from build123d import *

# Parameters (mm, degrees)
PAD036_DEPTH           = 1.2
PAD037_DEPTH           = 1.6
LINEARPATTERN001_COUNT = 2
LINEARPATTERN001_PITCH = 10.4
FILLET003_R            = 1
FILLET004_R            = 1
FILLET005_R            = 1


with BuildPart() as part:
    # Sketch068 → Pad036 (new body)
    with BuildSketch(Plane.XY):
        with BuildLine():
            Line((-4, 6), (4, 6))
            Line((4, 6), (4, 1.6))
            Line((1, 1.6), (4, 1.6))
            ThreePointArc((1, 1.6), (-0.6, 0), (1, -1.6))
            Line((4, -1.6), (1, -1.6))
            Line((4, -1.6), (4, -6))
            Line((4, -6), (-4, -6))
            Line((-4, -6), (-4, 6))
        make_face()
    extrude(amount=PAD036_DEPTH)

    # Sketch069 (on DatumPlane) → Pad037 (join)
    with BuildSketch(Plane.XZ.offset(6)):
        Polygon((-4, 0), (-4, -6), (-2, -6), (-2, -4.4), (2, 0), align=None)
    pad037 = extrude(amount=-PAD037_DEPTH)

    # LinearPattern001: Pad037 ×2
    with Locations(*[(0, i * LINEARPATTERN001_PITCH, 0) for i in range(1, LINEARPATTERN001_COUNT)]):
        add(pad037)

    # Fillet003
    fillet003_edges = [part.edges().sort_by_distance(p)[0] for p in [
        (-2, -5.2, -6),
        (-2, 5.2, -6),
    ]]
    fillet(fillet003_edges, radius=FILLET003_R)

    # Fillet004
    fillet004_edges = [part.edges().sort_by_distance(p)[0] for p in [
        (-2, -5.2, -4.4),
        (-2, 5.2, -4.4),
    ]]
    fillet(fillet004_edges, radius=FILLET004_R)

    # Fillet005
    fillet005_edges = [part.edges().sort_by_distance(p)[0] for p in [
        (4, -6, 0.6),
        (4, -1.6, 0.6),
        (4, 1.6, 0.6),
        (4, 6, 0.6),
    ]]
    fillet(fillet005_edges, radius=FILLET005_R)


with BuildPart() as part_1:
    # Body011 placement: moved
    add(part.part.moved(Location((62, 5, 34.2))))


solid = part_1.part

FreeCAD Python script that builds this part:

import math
import FreeCAD as App
import Part
import Sketcher
from FreeCAD import Vector
Q = App.Units.Quantity


def edges_at(feature, points):
    """Names of the edges that pass closest to the given points."""
    edges = feature.Shape.Edges
    near = lambda p: min(range(len(edges)), key=lambda i: edges[i].distToShape(Part.Vertex(*p))[0])
    return sorted({f"Edge{near(p) + 1}" for p in points})

doc = App.newDocument("Part")
body = doc.addObject("PartDesign::Body", "Body")

# Sketch on XY plane
sketch1 = body.newObject("Sketcher::SketchObject", "Sketch")
sketch1.AttachmentSupport = (doc.getObject("XY_Plane"), [""])
sketch1.MapMode = "FlatFace"
sketch1.addGeometry([
    Part.LineSegment(Vector(4, 6, 0), Vector(-4, 6, 0)),  # 0
    Part.LineSegment(Vector(-4, 6, 0), Vector(-4, -6, 0)),  # 1
    Part.LineSegment(Vector(-4, -6, 0), Vector(4, -6, 0)),  # 2
    Part.LineSegment(Vector(4, -6, 0), Vector(4, -1.6, 0)),  # 3
    Part.LineSegment(Vector(4, -1.6, 0), Vector(1, -1.6, 0)),  # 4
    Part.ArcOfCircle(Part.Circle(Vector(1, 0, 0), Vector(0, 0, 1), 1.6), math.radians(90), math.radians(270)),  # 5
    Part.LineSegment(Vector(1, 1.6, 0), Vector(4, 1.6, 0)),  # 6
    Part.LineSegment(Vector(4, 1.6, 0), Vector(4, 6, 0)),  # 7
], False)
sketch1.addConstraint([
    Sketcher.Constraint("Coincident", 0, 2, 1, 1),
    Sketcher.Constraint("Coincident", 1, 2, 2, 1),
    Sketcher.Constraint("Coincident", 2, 2, 3, 1),
    Sketcher.Constraint("Coincident", 3, 2, 4, 1),
    Sketcher.Constraint("Tangent", 4, 2, 5, 2),
    Sketcher.Constraint("Tangent", 5, 1, 6, 1),
    Sketcher.Constraint("Coincident", 6, 2, 7, 1),
    Sketcher.Constraint("Coincident", 7, 2, 0, 1),
    Sketcher.Constraint("Horizontal", 0),
    Sketcher.Constraint("Vertical", 1),
    Sketcher.Constraint("Horizontal", 2),
    Sketcher.Constraint("Vertical", 3),
    Sketcher.Constraint("Horizontal", 4),
    Sketcher.Constraint("Horizontal", 6),
    Sketcher.Constraint("Vertical", 7),
    Sketcher.Constraint("Symmetric", 0, 2, 2, 2, -1, 1),
    Sketcher.Constraint("Symmetric", 3, 2, 6, 2, -1),
    Sketcher.Constraint("Radius", 5, Q("1.6 mm")),
    Sketcher.Constraint("DistanceX", 0, 2, 0, 1, Q("8 mm")),
    Sketcher.Constraint("DistanceX", 4, 2, 4, 1, Q("3 mm")),
    Sketcher.Constraint("DistanceY", 1, 2, 1, 1, Q("12 mm")),
])
pad1 = body.newObject("PartDesign::Pad", "Pad")
pad1.Profile = sketch1
pad1.Length = 1.2

# Sketch on XZ plane
sketch2 = body.newObject("Sketcher::SketchObject", "Sketch001")
sketch2.AttachmentSupport = (doc.getObject("XZ_Plane"), [""])
sketch2.MapMode = "FlatFace"
sketch2.AttachmentOffset = App.Placement(Vector(0, 0, 6), App.Rotation())
sketch2.addGeometry([
    Part.LineSegment(Vector(-4, 0, 0), Vector(-4, -6, 0)),  # 0
    Part.LineSegment(Vector(-4, -6, 0), Vector(-2, -6, 0)),  # 1
    Part.LineSegment(Vector(-2, -6, 0), Vector(-2, -4.4, 0)),  # 2
    Part.LineSegment(Vector(-2, -4.4, 0), Vector(2, 0, 0)),  # 3
    Part.LineSegment(Vector(2, 0, 0), Vector(-4, 0, 0)),  # 4
], False)
sketch2.addConstraint([
    Sketcher.Constraint("Coincident", 0, 2, 1, 1),
    Sketcher.Constraint("Coincident", 1, 2, 2, 1),
    Sketcher.Constraint("Coincident", 2, 2, 3, 1),
    Sketcher.Constraint("Coincident", 3, 2, 4, 1),
    Sketcher.Constraint("Coincident", 4, 2, 0, 1),
    Sketcher.Constraint("Vertical", 0),
    Sketcher.Constraint("Horizontal", 1),
    Sketcher.Constraint("Vertical", 2),
    Sketcher.Constraint("Horizontal", 4),
    Sketcher.Constraint("PointOnObject", 3, 2, -1),
    Sketcher.Constraint("Equal", 4, 0),
    Sketcher.Constraint("DistanceX", 1, 1, 1, 2, Q("2 mm")),
    Sketcher.Constraint("DistanceX", 4, 2, 4, 1, Q("6 mm")),
    Sketcher.Constraint("DistanceY", 2, 1, 2, 2, Q("1.6 mm")),
    Sketcher.Constraint("DistanceX", 0, 2, -1, 1, Q("4 mm")),
])
pad2 = body.newObject("PartDesign::Pad", "Pad001")
pad2.Profile = sketch2
pad2.Length = 1.6
pad2.Reversed = True
doc.recompute()

linearpattern = body.newObject("PartDesign::LinearPattern", "LinearPattern")
linearpattern.Originals = [pad2]
linearpattern.Direction = (doc.getObject("Y_Axis"), [""])
linearpattern.Mode = "offset"
linearpattern.Offset = 10.4
linearpattern.Occurrences = 2
body.Tip = linearpattern
doc.recompute()

fillet = body.newObject("PartDesign::Fillet", "Fillet")
fillet.Base = (linearpattern, edges_at(linearpattern, [(-2, -5.2, -6), (-2, 5.2, -6)]))
fillet.Radius = 1
doc.recompute()

fillet2 = body.newObject("PartDesign::Fillet", "Fillet001")
fillet2.Base = (fillet, edges_at(fillet, [(-2, -5.2, -4.4), (-2, 5.2, -4.4)]))
fillet2.Radius = 1
doc.recompute()

fillet3 = body.newObject("PartDesign::Fillet", "Fillet002")
fillet3.Base = (fillet2, edges_at(fillet2, [
    (4, -6, 0.6),
    (4, -1.6, 0.6),
    (4, 1.6, 0.6),
    (4, 6, 0.6),
]))
fillet3.Radius = 1
body2 = doc.addObject("PartDesign::Body", "Body001")
doc.recompute()

body.Placement = App.Placement(Vector(62, 5, 34.2), App.Rotation(Vector(0, 0, 1), 0))
boolean = body2.newObject("PartDesign::Boolean", "Boolean")
boolean.Type = "Fuse"
boolean.addObjects([body])

doc.recompute()
